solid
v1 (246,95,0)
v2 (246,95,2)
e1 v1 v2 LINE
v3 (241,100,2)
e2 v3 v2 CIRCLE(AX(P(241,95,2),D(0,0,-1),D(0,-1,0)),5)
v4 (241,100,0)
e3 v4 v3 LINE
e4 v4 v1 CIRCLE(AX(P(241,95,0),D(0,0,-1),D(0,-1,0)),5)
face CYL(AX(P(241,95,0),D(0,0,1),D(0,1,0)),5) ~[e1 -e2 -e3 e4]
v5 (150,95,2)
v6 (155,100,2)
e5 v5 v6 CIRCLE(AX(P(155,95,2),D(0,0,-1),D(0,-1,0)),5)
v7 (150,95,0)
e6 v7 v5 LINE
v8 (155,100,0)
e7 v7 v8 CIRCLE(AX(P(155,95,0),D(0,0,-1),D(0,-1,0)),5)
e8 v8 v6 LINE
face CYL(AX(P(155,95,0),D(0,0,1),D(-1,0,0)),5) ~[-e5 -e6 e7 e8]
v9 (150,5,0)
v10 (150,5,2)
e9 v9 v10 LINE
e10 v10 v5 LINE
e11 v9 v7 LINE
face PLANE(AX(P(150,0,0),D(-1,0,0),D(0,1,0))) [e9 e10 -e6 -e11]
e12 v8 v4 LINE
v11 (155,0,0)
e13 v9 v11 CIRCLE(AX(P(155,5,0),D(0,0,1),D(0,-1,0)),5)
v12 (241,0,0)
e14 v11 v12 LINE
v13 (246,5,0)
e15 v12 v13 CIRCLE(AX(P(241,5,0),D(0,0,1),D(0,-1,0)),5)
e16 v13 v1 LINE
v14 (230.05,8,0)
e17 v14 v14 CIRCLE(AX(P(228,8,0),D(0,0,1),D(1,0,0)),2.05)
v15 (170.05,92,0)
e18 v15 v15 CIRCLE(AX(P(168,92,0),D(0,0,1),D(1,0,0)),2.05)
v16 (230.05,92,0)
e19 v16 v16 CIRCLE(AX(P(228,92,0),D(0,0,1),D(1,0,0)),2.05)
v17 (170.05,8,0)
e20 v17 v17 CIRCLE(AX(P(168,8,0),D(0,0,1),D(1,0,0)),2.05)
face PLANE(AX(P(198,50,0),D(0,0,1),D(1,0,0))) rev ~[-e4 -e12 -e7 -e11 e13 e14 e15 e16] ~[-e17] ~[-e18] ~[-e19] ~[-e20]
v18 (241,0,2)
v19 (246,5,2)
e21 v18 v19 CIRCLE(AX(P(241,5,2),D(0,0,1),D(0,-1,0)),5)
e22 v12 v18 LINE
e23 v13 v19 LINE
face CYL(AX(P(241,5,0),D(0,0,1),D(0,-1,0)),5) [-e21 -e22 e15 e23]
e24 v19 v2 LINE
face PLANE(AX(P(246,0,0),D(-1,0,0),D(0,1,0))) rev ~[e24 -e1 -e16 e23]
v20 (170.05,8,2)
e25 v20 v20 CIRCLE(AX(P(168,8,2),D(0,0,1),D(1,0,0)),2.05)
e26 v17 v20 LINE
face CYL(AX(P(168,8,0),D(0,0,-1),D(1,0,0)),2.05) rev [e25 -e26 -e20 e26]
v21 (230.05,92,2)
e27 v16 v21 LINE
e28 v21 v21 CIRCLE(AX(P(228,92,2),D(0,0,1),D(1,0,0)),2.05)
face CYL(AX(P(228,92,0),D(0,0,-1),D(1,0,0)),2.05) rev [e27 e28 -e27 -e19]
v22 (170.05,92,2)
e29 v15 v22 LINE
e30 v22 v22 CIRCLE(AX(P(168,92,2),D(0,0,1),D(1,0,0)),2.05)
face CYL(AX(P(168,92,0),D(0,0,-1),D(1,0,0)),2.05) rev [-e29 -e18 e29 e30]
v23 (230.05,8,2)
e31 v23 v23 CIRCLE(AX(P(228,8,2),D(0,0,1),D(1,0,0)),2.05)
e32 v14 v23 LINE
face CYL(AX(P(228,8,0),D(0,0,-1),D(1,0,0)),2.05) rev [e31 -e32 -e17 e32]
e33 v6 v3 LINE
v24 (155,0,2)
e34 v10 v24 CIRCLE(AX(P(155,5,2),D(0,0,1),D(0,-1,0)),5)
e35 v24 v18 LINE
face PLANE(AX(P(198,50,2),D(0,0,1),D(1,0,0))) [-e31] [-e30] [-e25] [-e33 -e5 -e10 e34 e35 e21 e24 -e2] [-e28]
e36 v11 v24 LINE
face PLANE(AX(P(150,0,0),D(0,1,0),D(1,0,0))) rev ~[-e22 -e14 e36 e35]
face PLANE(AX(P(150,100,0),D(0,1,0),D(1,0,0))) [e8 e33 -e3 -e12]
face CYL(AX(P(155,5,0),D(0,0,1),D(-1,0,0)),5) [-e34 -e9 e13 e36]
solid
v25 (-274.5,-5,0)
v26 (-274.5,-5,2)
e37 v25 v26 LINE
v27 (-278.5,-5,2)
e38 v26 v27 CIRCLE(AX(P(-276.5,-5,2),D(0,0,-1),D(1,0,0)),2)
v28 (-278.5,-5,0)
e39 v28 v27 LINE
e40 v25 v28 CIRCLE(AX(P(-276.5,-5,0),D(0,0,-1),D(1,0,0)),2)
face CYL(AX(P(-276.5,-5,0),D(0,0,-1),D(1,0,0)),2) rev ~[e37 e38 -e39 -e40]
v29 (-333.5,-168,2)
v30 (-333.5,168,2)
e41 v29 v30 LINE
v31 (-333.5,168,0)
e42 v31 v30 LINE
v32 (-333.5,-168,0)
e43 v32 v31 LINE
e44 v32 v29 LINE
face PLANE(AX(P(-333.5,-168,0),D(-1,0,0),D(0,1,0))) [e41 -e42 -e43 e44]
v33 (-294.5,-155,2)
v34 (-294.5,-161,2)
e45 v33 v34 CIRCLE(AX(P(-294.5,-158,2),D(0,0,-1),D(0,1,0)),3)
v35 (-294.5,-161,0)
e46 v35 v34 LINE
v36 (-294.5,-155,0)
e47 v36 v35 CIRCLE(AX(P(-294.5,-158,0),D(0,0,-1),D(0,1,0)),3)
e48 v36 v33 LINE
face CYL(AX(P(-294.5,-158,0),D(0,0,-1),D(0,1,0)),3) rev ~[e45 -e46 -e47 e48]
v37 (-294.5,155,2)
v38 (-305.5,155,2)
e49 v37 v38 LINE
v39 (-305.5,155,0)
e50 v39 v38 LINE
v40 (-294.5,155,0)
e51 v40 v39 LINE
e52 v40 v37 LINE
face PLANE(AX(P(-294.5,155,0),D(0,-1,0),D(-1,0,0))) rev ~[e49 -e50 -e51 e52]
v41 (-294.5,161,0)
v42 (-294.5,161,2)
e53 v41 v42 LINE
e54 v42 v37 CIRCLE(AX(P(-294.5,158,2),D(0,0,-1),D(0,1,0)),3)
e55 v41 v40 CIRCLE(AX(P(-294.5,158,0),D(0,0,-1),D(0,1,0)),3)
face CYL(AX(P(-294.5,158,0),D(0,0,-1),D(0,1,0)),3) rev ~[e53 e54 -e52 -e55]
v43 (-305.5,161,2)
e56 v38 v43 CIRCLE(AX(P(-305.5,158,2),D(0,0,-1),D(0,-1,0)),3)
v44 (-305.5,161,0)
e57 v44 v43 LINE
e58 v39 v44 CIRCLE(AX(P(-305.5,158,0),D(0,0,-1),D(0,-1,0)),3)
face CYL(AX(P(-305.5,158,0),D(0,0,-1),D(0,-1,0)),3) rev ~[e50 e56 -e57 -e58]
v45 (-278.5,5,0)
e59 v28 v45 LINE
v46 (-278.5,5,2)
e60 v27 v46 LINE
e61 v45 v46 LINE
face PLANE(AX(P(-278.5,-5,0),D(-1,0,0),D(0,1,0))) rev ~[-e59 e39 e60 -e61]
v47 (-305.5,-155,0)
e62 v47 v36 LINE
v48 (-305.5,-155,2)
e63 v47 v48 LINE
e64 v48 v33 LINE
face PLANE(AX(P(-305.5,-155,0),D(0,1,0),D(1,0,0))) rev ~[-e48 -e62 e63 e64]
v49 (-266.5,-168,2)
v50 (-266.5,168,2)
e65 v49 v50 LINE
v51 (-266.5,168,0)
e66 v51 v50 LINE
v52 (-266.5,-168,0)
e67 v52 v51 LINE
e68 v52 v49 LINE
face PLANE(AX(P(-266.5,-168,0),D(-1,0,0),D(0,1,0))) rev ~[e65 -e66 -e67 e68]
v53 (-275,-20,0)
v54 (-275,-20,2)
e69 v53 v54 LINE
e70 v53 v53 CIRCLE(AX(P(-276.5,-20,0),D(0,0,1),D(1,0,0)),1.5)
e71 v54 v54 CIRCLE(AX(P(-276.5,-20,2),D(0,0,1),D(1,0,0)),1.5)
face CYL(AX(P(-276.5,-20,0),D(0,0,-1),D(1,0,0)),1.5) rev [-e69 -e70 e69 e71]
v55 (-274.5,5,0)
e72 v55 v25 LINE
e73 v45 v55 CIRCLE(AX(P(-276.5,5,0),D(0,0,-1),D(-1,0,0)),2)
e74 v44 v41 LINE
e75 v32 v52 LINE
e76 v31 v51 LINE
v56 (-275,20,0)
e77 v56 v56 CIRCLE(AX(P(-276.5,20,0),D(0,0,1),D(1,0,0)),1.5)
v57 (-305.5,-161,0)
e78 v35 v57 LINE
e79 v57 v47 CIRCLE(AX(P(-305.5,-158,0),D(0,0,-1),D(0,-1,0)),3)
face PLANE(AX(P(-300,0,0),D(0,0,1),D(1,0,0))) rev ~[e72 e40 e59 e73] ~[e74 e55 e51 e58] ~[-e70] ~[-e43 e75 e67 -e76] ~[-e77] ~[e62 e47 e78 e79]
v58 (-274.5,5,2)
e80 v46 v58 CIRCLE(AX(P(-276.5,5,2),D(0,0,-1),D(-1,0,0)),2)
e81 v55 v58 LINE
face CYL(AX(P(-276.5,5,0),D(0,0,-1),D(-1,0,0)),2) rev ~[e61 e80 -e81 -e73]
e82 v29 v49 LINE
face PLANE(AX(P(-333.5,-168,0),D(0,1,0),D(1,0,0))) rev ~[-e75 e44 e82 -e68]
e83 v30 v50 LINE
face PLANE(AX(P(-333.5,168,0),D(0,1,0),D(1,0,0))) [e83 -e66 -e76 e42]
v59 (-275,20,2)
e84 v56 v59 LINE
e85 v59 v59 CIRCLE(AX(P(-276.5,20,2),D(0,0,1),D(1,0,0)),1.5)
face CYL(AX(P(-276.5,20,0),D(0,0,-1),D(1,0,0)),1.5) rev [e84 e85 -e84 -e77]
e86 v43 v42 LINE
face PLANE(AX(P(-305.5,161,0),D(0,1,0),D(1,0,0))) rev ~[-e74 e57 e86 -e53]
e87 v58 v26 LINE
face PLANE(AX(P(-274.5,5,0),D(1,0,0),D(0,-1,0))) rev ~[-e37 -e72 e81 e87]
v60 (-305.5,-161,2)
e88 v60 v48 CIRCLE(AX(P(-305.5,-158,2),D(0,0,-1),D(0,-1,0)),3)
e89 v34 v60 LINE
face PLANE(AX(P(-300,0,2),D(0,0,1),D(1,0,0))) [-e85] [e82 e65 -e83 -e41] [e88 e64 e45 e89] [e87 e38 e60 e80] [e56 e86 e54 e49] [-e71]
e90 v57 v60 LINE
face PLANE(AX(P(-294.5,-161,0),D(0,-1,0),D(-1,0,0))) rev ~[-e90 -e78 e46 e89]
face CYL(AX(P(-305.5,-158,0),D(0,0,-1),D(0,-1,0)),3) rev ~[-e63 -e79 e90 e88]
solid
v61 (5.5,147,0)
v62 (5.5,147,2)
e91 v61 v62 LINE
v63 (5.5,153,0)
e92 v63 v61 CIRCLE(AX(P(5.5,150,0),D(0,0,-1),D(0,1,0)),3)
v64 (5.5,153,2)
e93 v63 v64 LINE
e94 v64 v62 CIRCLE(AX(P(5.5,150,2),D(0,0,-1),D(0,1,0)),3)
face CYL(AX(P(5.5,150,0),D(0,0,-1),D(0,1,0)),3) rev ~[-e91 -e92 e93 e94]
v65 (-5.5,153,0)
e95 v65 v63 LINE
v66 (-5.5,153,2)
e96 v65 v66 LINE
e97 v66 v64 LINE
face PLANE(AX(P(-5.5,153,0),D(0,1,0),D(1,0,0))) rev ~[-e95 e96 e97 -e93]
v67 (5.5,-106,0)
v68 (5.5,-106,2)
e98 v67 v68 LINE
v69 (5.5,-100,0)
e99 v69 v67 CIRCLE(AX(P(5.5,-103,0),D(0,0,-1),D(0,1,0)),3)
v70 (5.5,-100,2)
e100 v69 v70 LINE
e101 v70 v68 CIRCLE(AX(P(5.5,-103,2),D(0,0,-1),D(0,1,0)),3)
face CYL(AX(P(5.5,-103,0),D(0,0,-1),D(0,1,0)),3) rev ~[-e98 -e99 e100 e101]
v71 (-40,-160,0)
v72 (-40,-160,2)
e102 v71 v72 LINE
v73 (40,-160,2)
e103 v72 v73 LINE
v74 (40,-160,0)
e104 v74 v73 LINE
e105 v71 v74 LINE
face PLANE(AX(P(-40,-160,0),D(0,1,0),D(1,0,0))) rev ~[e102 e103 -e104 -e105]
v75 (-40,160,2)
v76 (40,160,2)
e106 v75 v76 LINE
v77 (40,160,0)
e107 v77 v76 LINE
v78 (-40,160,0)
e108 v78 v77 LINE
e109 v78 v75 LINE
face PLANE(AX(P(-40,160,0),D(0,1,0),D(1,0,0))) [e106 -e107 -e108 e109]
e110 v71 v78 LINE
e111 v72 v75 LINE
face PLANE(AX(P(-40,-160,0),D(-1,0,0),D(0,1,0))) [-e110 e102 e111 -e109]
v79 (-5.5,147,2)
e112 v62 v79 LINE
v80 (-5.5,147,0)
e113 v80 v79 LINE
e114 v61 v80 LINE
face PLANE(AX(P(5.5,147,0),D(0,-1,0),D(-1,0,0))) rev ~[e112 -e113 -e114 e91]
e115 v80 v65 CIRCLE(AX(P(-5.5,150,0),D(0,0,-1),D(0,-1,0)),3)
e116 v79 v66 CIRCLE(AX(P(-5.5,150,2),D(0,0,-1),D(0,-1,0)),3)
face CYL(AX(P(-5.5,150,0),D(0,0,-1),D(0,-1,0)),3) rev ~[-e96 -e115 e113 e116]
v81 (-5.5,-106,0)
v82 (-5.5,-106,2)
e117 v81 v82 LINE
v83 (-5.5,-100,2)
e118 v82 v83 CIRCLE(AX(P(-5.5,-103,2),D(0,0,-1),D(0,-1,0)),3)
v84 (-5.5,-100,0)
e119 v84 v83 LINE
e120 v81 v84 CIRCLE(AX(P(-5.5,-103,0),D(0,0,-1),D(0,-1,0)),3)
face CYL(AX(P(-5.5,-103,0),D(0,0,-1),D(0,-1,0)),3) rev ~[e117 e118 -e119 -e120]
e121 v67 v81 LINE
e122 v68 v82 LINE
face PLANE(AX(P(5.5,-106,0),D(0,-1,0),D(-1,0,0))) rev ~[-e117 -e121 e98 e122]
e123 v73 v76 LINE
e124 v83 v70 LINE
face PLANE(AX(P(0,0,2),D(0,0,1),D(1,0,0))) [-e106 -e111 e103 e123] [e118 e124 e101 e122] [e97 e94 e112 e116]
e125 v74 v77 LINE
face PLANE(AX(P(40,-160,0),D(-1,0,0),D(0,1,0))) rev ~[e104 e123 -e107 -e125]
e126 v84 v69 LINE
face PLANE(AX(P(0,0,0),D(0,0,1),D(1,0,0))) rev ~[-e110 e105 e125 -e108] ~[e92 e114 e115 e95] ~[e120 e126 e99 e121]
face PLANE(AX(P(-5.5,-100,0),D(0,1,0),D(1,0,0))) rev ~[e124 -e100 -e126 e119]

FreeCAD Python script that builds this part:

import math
import FreeCAD as App
import Part
import Sketcher

V = App.Vector
Q = App.Units.Quantity


def edges_at(feature, points):
    """Names of the edges that pass closest to the given points."""
    edges = feature.Shape.Edges
    near = lambda p: min(range(len(edges)), key=lambda i: edges[i].distToShape(Part.Vertex(*p))[0])
    return sorted({f"Edge{near(p) + 1}" for p in points})


def add_polygon(sketch, points):
    """Adds a closed chain of lines whose ends are joined by coincident constraints."""
    first, n = sketch.GeometryCount, len(points)
    for a, b in zip(points, points[1:] + points[:1]):
        sketch.addGeometry(Part.LineSegment(App.Vector(*a, 0), App.Vector(*b, 0)), False)
    for i in range(n):
        sketch.addConstraint(Sketcher.Constraint("Coincident", first + i, 2, first + (i + 1) % n, 1))

doc = App.newDocument("Part")
body = doc.addObject("PartDesign::Body", "Body")
body.AllowCompound = True

# Sketch on XY plane
sketch1 = body.newObject("Sketcher::SketchObject", "Sketch")
sketch1.AttachmentSupport = (doc.getObject("XY_Plane"), [""])
sketch1.MapMode = "FlatFace"
add_polygon(sketch1, [(-40, 160), (-40, -160), (40, -160), (40, 160)])  # lines 0-3
sketch1.addGeometry(Part.LineSegment(V(-5.5, -100, 0), V(5.5, -100, 0)), False)  # 4
sketch1.addGeometry(Part.ArcOfCircle(Part.Circle(V(5.5, -103, 0), V(0, 0, 1), 3), math.radians(-90), math.radians(90)), False)  # 5
sketch1.addGeometry(Part.LineSegment(V(5.5, -106, 0), V(-5.5, -106, 0)), False)  # 6
sketch1.addGeometry(Part.ArcOfCircle(Part.Circle(V(-5.5, -103, 0), V(0, 0, 1), 3), math.radians(90), math.radians(270)), False)  # 7
sketch1.addGeometry(Part.LineSegment(V(-5.5, 153, 0), V(5.5, 153, 0)), False)  # 8
sketch1.addGeometry(Part.ArcOfCircle(Part.Circle(V(5.5, 150, 0), V(0, 0, 1), 3), math.radians(-90), math.radians(90)), False)  # 9
sketch1.addGeometry(Part.LineSegment(V(5.5, 147, 0), V(-5.5, 147, 0)), False)  # 10
sketch1.addGeometry(Part.ArcOfCircle(Part.Circle(V(-5.5, 150, 0), V(0, 0, 1), 3), math.radians(90), math.radians(270)), False)  # 11
add_polygon(sketch1, [(-333.5, 168), (-333.5, -168), (-266.5, -168), (-266.5, 168)])  # lines 12-15
sketch1.addGeometry(Part.LineSegment(V(-305.5, -155, 0), V(-294.5, -155, 0)), False)  # 16
sketch1.addGeometry(Part.ArcOfCircle(Part.Circle(V(-294.5, -158, 0), V(0, 0, 1), 3), math.radians(-90), math.radians(90)), False)  # 17
sketch1.addGeometry(Part.LineSegment(V(-294.5, -161, 0), V(-305.5, -161, 0)), False)  # 18
sketch1.addGeometry(Part.ArcOfCircle(Part.Circle(V(-305.5, -158, 0), V(0, 0, 1), 3), math.radians(90), math.radians(270)), False)  # 19
sketch1.addGeometry(Part.Circle(V(-276.5, -20, 0), V(0, 0, 1), 1.5), False)  # 20
sketch1.addGeometry(Part.ArcOfCircle(Part.Circle(V(-276.5, 5, 0), V(0, 0, 1), 2), math.radians(0), math.radians(180)), False)  # 21
sketch1.addGeometry(Part.LineSegment(V(-274.5, 5, 0), V(-274.5, -5, 0)), False)  # 22
sketch1.addGeometry(Part.ArcOfCircle(Part.Circle(V(-276.5, -5, 0), V(0, 0, 1), 2), math.radians(180), math.radians(360)), False)  # 23
sketch1.addGeometry(Part.LineSegment(V(-278.5, -5, 0), V(-278.5, 5, 0)), False)  # 24
sketch1.addGeometry(Part.LineSegment(V(-305.5, 161, 0), V(-294.5, 161, 0)), False)  # 25
sketch1.addGeometry(Part.ArcOfCircle(Part.Circle(V(-294.5, 158, 0), V(0, 0, 1), 3), math.radians(-90), math.radians(90)), False)  # 26
sketch1.addGeometry(Part.LineSegment(V(-294.5, 155, 0), V(-305.5, 155, 0)), False)  # 27
sketch1.addGeometry(Part.ArcOfCircle(Part.Circle(V(-305.5, 158, 0), V(0, 0, 1), 3), math.radians(90), math.radians(270)), False)  # 28
sketch1.addGeometry(Part.Circle(V(-276.5, 20, 0), V(0, 0, 1), 1.5), False)  # 29
add_polygon(sketch1, [(150, 100), (150, 0), (246, 0), (246, 100)])  # lines 30-33
sketch1.addGeometry(Part.Circle(V(168, 8, 0), V(0, 0, 1), 2.05), False)  # 34
sketch1.addGeometry(Part.Circle(V(228, 8, 0), V(0, 0, 1), 2.05), False)  # 35
sketch1.addGeometry(Part.Circle(V(168, 92, 0), V(0, 0, 1), 2.05), False)  # 36
sketch1.addGeometry(Part.Circle(V(228, 92, 0), V(0, 0, 1), 2.05), False)  # 37
sketch1.addConstraint(Sketcher.Constraint("Tangent", 4, 2, 5, 2))
sketch1.addConstraint(Sketcher.Constraint("Tangent", 5, 1, 6, 1))
sketch1.addConstraint(Sketcher.Constraint("Tangent", 6, 2, 7, 2))
sketch1.addConstraint(Sketcher.Constraint("Tangent", 7, 1, 4, 1))
sketch1.addConstraint(Sketcher.Constraint("Tangent", 8, 2, 9, 2))
sketch1.addConstraint(Sketcher.Constraint("Tangent", 9, 1, 10, 1))
sketch1.addConstraint(Sketcher.Constraint("Tangent", 10, 2, 11, 2))
sketch1.addConstraint(Sketcher.Constraint("Tangent", 11, 1, 8, 1))
sketch1.addConstraint(Sketcher.Constraint("Tangent", 16, 2, 17, 2))
sketch1.addConstraint(Sketcher.Constraint("Tangent", 17, 1, 18, 1))
sketch1.addConstraint(Sketcher.Constraint("Tangent", 18, 2, 19, 2))
sketch1.addConstraint(Sketcher.Constraint("Tangent", 19, 1, 16, 1))
sketch1.addConstraint(Sketcher.Constraint("Tangent", 21, 1, 22, 1))
sketch1.addConstraint(Sketcher.Constraint("Tangent", 22, 2, 23, 2))
sketch1.addConstraint(Sketcher.Constraint("Tangent", 23, 1, 24, 1))
sketch1.addConstraint(Sketcher.Constraint("Tangent", 24, 2, 21, 2))
sketch1.addConstraint(Sketcher.Constraint("Tangent", 25, 2, 26, 2))
sketch1.addConstraint(Sketcher.Constraint("Tangent", 26, 1, 27, 1))
sketch1.addConstraint(Sketcher.Constraint("Tangent", 27, 2, 28, 2))
sketch1.addConstraint(Sketcher.Constraint("Tangent", 28, 1, 25, 1))
sketch1.addConstraint(Sketcher.Constraint("Vertical", 0))
sketch1.addConstraint(Sketcher.Constraint("Horizontal", 1))
sketch1.addConstraint(Sketcher.Constraint("Vertical", 2))
sketch1.addConstraint(Sketcher.Constraint("Horizontal", 3))
sketch1.addConstraint(Sketcher.Constraint("Horizontal", 4))
sketch1.addConstraint(Sketcher.Constraint("Horizontal", 6))
sketch1.addConstraint(Sketcher.Constraint("Horizontal", 8))
sketch1.addConstraint(Sketcher.Constraint("Horizontal", 10))
sketch1.addConstraint(Sketcher.Constraint("Vertical", 12))
sketch1.addConstraint(Sketcher.Constraint("Horizontal", 13))
sketch1.addConstraint(Sketcher.Constraint("Vertical", 14))
sketch1.addConstraint(Sketcher.Constraint("Horizontal", 15))
sketch1.addConstraint(Sketcher.Constraint("Horizontal", 16))
sketch1.addConstraint(Sketcher.Constraint("Horizontal", 18))
sketch1.addConstraint(Sketcher.Constraint("Vertical", 22))
sketch1.addConstraint(Sketcher.Constraint("Vertical", 24))
sketch1.addConstraint(Sketcher.Constraint("Horizontal", 25))
sketch1.addConstraint(Sketcher.Constraint("Horizontal", 27))
sketch1.addConstraint(Sketcher.Constraint("Vertical", 30))
sketch1.addConstraint(Sketcher.Constraint("Horizontal", 31))
sketch1.addConstraint(Sketcher.Constraint("Vertical", 32))
sketch1.addConstraint(Sketcher.Constraint("Horizontal", 33))
sketch1.addConstraint(Sketcher.Constraint("Equal", 7, 9))
sketch1.addConstraint(Sketcher.Constraint("Equal", 11, 17))
sketch1.addConstraint(Sketcher.Constraint("Equal", 19, 26))
sketch1.addConstraint(Sketcher.Constraint("Equal", 20, 29))
sketch1.addConstraint(Sketcher.Constraint("Equal", 34, 35))
sketch1.addConstraint(Sketcher.Constraint("Equal", 35, 36))
sketch1.addConstraint(Sketcher.Constraint("Equal", 36, 37))
sketch1.addConstraint(Sketcher.Constraint("Symmetric", 0, 2, 2, 2, -1, 1))
sketch1.addConstraint(Sketcher.Constraint("Symmetric", 17, 3, 26, 3, -1))
sketch1.addConstraint(Sketcher.Constraint("Symmetric", 20, 3, 29, 3, -1))
sketch1.addConstraint(Sketcher.Constraint("PointOnObject", 30, 2, -1))
sketch1.addConstraint(Sketcher.Constraint("Horizontal", 34, 3, 35, 3))
sketch1.addConstraint(Sketcher.Constraint("Horizontal", 36, 3, 37, 3))
sketch1.addConstraint(Sketcher.Constraint("Vertical", 5, 3, 9, 3))
sketch1.addConstraint(Sketcher.Constraint("Vertical", 7, 3, 11, 3))
sketch1.addConstraint(Sketcher.Constraint("Vertical", 20, 3, 21, 3))
sketch1.addConstraint(Sketcher.Constraint("Vertical", 19, 3, 28, 3))
sketch1.addConstraint(Sketcher.Constraint("Vertical", 34, 3, 36, 3))
sketch1.addConstraint(Sketcher.Constraint("Vertical", 35, 3, 37, 3))
sketch1.addConstraint(Sketcher.Constraint("Equal", 10, 16))
sketch1.addConstraint(Sketcher.Constraint("Diameter", 20, Q("3 mm")))
sketch1.addConstraint(Sketcher.Constraint("Radius", 5, Q("3 mm")))
sketch1.addConstraint(Sketcher.Constraint("Radius", 21, Q("2 mm")))
sketch1.addConstraint(Sketcher.Constraint("Diameter", 34, Q("4.1 mm")))
sketch1.addConstraint(Sketcher.Constraint("DistanceX", 1, 1, 1, 2, Q("80 mm")))
sketch1.addConstraint(Sketcher.Constraint("DistanceX", 4, 1, 4, 2, Q("11 mm")))
sketch1.addConstraint(Sketcher.Constraint("DistanceX", 13, 1, 13, 2, Q("67 mm")))
sketch1.addConstraint(Sketcher.Constraint("DistanceX", 31, 1, 31, 2, Q("96 mm")))
sketch1.addConstraint(Sketcher.Constraint("DistanceY", 0, 2, 0, 1, Q("320 mm")))
sketch1.addConstraint(Sketcher.Constraint("DistanceY", 12, 2, 12, 1, Q("336 mm")))
sketch1.addConstraint(Sketcher.Constraint("DistanceY", 22, 2, 22, 1, Q("10 mm")))
sketch1.addConstraint(Sketcher.Constraint("DistanceY", 30, 2, 30, 1, Q("100 mm")))
sketch1.addConstraint(Sketcher.Constraint("DistanceY", 5, 3, -1, 1, Q("103 mm")))
sketch1.addConstraint(Sketcher.Constraint("DistanceY", -1, 1, 9, 3, Q("150 mm")))
sketch1.addConstraint(Sketcher.Constraint("DistanceY", 17, 3, -1, 1, Q("158 mm")))
sketch1.addConstraint(Sketcher.Constraint("DistanceY", 20, 3, -1, 1, Q("20 mm")))
sketch1.addConstraint(Sketcher.Constraint("DistanceY", -1, 1, 21, 3, Q("5 mm")))
sketch1.addConstraint(Sketcher.Constraint("DistanceX", -1, 1, 34, 3, Q("168 mm")))
sketch1.addConstraint(Sketcher.Constraint("DistanceY", -1, 1, 34, 3, Q("8 mm")))
sketch1.addConstraint(Sketcher.Constraint("DistanceX", -1, 1, 35, 3, Q("228 mm")))
sketch1.addConstraint(Sketcher.Constraint("DistanceY", -1, 1, 36, 3, Q("92 mm")))
sketch1.addConstraint(Sketcher.Constraint("DistanceY", 12, 2, -1, 1, Q("168 mm")))
sketch1.addConstraint(Sketcher.Constraint("DistanceX", -1, 1, 30, 2, Q("150 mm")))
sketch1.addConstraint(Sketcher.Constraint("DistanceX", 17, 3, 7, 3, Q("289 mm")))
sketch1.addConstraint(Sketcher.Constraint("DistanceX", 17, 3, 20, 3, Q("18 mm")))
sketch1.addConstraint(Sketcher.Constraint("DistanceX", 12, 2, 19, 3, Q("28 mm")))
sketch1.addConstraint(Sketcher.Constraint("DistanceX", -1, 1, 5, 3, Q("5.5 mm")))
pad1 = body.newObject("PartDesign::Pad", "Pad")
pad1.Profile = sketch1
pad1.Length = 2
doc.recompute()

fillet = body.newObject("PartDesign::Fillet", "Fillet")
fillet.Base = (pad1, edges_at(pad1, [
    (150, 0, 1),
    (246, 0, 1),
    (246, 100, 1),
    (150, 100, 1),
]))
fillet.Radius = 5

doc.recompute()
